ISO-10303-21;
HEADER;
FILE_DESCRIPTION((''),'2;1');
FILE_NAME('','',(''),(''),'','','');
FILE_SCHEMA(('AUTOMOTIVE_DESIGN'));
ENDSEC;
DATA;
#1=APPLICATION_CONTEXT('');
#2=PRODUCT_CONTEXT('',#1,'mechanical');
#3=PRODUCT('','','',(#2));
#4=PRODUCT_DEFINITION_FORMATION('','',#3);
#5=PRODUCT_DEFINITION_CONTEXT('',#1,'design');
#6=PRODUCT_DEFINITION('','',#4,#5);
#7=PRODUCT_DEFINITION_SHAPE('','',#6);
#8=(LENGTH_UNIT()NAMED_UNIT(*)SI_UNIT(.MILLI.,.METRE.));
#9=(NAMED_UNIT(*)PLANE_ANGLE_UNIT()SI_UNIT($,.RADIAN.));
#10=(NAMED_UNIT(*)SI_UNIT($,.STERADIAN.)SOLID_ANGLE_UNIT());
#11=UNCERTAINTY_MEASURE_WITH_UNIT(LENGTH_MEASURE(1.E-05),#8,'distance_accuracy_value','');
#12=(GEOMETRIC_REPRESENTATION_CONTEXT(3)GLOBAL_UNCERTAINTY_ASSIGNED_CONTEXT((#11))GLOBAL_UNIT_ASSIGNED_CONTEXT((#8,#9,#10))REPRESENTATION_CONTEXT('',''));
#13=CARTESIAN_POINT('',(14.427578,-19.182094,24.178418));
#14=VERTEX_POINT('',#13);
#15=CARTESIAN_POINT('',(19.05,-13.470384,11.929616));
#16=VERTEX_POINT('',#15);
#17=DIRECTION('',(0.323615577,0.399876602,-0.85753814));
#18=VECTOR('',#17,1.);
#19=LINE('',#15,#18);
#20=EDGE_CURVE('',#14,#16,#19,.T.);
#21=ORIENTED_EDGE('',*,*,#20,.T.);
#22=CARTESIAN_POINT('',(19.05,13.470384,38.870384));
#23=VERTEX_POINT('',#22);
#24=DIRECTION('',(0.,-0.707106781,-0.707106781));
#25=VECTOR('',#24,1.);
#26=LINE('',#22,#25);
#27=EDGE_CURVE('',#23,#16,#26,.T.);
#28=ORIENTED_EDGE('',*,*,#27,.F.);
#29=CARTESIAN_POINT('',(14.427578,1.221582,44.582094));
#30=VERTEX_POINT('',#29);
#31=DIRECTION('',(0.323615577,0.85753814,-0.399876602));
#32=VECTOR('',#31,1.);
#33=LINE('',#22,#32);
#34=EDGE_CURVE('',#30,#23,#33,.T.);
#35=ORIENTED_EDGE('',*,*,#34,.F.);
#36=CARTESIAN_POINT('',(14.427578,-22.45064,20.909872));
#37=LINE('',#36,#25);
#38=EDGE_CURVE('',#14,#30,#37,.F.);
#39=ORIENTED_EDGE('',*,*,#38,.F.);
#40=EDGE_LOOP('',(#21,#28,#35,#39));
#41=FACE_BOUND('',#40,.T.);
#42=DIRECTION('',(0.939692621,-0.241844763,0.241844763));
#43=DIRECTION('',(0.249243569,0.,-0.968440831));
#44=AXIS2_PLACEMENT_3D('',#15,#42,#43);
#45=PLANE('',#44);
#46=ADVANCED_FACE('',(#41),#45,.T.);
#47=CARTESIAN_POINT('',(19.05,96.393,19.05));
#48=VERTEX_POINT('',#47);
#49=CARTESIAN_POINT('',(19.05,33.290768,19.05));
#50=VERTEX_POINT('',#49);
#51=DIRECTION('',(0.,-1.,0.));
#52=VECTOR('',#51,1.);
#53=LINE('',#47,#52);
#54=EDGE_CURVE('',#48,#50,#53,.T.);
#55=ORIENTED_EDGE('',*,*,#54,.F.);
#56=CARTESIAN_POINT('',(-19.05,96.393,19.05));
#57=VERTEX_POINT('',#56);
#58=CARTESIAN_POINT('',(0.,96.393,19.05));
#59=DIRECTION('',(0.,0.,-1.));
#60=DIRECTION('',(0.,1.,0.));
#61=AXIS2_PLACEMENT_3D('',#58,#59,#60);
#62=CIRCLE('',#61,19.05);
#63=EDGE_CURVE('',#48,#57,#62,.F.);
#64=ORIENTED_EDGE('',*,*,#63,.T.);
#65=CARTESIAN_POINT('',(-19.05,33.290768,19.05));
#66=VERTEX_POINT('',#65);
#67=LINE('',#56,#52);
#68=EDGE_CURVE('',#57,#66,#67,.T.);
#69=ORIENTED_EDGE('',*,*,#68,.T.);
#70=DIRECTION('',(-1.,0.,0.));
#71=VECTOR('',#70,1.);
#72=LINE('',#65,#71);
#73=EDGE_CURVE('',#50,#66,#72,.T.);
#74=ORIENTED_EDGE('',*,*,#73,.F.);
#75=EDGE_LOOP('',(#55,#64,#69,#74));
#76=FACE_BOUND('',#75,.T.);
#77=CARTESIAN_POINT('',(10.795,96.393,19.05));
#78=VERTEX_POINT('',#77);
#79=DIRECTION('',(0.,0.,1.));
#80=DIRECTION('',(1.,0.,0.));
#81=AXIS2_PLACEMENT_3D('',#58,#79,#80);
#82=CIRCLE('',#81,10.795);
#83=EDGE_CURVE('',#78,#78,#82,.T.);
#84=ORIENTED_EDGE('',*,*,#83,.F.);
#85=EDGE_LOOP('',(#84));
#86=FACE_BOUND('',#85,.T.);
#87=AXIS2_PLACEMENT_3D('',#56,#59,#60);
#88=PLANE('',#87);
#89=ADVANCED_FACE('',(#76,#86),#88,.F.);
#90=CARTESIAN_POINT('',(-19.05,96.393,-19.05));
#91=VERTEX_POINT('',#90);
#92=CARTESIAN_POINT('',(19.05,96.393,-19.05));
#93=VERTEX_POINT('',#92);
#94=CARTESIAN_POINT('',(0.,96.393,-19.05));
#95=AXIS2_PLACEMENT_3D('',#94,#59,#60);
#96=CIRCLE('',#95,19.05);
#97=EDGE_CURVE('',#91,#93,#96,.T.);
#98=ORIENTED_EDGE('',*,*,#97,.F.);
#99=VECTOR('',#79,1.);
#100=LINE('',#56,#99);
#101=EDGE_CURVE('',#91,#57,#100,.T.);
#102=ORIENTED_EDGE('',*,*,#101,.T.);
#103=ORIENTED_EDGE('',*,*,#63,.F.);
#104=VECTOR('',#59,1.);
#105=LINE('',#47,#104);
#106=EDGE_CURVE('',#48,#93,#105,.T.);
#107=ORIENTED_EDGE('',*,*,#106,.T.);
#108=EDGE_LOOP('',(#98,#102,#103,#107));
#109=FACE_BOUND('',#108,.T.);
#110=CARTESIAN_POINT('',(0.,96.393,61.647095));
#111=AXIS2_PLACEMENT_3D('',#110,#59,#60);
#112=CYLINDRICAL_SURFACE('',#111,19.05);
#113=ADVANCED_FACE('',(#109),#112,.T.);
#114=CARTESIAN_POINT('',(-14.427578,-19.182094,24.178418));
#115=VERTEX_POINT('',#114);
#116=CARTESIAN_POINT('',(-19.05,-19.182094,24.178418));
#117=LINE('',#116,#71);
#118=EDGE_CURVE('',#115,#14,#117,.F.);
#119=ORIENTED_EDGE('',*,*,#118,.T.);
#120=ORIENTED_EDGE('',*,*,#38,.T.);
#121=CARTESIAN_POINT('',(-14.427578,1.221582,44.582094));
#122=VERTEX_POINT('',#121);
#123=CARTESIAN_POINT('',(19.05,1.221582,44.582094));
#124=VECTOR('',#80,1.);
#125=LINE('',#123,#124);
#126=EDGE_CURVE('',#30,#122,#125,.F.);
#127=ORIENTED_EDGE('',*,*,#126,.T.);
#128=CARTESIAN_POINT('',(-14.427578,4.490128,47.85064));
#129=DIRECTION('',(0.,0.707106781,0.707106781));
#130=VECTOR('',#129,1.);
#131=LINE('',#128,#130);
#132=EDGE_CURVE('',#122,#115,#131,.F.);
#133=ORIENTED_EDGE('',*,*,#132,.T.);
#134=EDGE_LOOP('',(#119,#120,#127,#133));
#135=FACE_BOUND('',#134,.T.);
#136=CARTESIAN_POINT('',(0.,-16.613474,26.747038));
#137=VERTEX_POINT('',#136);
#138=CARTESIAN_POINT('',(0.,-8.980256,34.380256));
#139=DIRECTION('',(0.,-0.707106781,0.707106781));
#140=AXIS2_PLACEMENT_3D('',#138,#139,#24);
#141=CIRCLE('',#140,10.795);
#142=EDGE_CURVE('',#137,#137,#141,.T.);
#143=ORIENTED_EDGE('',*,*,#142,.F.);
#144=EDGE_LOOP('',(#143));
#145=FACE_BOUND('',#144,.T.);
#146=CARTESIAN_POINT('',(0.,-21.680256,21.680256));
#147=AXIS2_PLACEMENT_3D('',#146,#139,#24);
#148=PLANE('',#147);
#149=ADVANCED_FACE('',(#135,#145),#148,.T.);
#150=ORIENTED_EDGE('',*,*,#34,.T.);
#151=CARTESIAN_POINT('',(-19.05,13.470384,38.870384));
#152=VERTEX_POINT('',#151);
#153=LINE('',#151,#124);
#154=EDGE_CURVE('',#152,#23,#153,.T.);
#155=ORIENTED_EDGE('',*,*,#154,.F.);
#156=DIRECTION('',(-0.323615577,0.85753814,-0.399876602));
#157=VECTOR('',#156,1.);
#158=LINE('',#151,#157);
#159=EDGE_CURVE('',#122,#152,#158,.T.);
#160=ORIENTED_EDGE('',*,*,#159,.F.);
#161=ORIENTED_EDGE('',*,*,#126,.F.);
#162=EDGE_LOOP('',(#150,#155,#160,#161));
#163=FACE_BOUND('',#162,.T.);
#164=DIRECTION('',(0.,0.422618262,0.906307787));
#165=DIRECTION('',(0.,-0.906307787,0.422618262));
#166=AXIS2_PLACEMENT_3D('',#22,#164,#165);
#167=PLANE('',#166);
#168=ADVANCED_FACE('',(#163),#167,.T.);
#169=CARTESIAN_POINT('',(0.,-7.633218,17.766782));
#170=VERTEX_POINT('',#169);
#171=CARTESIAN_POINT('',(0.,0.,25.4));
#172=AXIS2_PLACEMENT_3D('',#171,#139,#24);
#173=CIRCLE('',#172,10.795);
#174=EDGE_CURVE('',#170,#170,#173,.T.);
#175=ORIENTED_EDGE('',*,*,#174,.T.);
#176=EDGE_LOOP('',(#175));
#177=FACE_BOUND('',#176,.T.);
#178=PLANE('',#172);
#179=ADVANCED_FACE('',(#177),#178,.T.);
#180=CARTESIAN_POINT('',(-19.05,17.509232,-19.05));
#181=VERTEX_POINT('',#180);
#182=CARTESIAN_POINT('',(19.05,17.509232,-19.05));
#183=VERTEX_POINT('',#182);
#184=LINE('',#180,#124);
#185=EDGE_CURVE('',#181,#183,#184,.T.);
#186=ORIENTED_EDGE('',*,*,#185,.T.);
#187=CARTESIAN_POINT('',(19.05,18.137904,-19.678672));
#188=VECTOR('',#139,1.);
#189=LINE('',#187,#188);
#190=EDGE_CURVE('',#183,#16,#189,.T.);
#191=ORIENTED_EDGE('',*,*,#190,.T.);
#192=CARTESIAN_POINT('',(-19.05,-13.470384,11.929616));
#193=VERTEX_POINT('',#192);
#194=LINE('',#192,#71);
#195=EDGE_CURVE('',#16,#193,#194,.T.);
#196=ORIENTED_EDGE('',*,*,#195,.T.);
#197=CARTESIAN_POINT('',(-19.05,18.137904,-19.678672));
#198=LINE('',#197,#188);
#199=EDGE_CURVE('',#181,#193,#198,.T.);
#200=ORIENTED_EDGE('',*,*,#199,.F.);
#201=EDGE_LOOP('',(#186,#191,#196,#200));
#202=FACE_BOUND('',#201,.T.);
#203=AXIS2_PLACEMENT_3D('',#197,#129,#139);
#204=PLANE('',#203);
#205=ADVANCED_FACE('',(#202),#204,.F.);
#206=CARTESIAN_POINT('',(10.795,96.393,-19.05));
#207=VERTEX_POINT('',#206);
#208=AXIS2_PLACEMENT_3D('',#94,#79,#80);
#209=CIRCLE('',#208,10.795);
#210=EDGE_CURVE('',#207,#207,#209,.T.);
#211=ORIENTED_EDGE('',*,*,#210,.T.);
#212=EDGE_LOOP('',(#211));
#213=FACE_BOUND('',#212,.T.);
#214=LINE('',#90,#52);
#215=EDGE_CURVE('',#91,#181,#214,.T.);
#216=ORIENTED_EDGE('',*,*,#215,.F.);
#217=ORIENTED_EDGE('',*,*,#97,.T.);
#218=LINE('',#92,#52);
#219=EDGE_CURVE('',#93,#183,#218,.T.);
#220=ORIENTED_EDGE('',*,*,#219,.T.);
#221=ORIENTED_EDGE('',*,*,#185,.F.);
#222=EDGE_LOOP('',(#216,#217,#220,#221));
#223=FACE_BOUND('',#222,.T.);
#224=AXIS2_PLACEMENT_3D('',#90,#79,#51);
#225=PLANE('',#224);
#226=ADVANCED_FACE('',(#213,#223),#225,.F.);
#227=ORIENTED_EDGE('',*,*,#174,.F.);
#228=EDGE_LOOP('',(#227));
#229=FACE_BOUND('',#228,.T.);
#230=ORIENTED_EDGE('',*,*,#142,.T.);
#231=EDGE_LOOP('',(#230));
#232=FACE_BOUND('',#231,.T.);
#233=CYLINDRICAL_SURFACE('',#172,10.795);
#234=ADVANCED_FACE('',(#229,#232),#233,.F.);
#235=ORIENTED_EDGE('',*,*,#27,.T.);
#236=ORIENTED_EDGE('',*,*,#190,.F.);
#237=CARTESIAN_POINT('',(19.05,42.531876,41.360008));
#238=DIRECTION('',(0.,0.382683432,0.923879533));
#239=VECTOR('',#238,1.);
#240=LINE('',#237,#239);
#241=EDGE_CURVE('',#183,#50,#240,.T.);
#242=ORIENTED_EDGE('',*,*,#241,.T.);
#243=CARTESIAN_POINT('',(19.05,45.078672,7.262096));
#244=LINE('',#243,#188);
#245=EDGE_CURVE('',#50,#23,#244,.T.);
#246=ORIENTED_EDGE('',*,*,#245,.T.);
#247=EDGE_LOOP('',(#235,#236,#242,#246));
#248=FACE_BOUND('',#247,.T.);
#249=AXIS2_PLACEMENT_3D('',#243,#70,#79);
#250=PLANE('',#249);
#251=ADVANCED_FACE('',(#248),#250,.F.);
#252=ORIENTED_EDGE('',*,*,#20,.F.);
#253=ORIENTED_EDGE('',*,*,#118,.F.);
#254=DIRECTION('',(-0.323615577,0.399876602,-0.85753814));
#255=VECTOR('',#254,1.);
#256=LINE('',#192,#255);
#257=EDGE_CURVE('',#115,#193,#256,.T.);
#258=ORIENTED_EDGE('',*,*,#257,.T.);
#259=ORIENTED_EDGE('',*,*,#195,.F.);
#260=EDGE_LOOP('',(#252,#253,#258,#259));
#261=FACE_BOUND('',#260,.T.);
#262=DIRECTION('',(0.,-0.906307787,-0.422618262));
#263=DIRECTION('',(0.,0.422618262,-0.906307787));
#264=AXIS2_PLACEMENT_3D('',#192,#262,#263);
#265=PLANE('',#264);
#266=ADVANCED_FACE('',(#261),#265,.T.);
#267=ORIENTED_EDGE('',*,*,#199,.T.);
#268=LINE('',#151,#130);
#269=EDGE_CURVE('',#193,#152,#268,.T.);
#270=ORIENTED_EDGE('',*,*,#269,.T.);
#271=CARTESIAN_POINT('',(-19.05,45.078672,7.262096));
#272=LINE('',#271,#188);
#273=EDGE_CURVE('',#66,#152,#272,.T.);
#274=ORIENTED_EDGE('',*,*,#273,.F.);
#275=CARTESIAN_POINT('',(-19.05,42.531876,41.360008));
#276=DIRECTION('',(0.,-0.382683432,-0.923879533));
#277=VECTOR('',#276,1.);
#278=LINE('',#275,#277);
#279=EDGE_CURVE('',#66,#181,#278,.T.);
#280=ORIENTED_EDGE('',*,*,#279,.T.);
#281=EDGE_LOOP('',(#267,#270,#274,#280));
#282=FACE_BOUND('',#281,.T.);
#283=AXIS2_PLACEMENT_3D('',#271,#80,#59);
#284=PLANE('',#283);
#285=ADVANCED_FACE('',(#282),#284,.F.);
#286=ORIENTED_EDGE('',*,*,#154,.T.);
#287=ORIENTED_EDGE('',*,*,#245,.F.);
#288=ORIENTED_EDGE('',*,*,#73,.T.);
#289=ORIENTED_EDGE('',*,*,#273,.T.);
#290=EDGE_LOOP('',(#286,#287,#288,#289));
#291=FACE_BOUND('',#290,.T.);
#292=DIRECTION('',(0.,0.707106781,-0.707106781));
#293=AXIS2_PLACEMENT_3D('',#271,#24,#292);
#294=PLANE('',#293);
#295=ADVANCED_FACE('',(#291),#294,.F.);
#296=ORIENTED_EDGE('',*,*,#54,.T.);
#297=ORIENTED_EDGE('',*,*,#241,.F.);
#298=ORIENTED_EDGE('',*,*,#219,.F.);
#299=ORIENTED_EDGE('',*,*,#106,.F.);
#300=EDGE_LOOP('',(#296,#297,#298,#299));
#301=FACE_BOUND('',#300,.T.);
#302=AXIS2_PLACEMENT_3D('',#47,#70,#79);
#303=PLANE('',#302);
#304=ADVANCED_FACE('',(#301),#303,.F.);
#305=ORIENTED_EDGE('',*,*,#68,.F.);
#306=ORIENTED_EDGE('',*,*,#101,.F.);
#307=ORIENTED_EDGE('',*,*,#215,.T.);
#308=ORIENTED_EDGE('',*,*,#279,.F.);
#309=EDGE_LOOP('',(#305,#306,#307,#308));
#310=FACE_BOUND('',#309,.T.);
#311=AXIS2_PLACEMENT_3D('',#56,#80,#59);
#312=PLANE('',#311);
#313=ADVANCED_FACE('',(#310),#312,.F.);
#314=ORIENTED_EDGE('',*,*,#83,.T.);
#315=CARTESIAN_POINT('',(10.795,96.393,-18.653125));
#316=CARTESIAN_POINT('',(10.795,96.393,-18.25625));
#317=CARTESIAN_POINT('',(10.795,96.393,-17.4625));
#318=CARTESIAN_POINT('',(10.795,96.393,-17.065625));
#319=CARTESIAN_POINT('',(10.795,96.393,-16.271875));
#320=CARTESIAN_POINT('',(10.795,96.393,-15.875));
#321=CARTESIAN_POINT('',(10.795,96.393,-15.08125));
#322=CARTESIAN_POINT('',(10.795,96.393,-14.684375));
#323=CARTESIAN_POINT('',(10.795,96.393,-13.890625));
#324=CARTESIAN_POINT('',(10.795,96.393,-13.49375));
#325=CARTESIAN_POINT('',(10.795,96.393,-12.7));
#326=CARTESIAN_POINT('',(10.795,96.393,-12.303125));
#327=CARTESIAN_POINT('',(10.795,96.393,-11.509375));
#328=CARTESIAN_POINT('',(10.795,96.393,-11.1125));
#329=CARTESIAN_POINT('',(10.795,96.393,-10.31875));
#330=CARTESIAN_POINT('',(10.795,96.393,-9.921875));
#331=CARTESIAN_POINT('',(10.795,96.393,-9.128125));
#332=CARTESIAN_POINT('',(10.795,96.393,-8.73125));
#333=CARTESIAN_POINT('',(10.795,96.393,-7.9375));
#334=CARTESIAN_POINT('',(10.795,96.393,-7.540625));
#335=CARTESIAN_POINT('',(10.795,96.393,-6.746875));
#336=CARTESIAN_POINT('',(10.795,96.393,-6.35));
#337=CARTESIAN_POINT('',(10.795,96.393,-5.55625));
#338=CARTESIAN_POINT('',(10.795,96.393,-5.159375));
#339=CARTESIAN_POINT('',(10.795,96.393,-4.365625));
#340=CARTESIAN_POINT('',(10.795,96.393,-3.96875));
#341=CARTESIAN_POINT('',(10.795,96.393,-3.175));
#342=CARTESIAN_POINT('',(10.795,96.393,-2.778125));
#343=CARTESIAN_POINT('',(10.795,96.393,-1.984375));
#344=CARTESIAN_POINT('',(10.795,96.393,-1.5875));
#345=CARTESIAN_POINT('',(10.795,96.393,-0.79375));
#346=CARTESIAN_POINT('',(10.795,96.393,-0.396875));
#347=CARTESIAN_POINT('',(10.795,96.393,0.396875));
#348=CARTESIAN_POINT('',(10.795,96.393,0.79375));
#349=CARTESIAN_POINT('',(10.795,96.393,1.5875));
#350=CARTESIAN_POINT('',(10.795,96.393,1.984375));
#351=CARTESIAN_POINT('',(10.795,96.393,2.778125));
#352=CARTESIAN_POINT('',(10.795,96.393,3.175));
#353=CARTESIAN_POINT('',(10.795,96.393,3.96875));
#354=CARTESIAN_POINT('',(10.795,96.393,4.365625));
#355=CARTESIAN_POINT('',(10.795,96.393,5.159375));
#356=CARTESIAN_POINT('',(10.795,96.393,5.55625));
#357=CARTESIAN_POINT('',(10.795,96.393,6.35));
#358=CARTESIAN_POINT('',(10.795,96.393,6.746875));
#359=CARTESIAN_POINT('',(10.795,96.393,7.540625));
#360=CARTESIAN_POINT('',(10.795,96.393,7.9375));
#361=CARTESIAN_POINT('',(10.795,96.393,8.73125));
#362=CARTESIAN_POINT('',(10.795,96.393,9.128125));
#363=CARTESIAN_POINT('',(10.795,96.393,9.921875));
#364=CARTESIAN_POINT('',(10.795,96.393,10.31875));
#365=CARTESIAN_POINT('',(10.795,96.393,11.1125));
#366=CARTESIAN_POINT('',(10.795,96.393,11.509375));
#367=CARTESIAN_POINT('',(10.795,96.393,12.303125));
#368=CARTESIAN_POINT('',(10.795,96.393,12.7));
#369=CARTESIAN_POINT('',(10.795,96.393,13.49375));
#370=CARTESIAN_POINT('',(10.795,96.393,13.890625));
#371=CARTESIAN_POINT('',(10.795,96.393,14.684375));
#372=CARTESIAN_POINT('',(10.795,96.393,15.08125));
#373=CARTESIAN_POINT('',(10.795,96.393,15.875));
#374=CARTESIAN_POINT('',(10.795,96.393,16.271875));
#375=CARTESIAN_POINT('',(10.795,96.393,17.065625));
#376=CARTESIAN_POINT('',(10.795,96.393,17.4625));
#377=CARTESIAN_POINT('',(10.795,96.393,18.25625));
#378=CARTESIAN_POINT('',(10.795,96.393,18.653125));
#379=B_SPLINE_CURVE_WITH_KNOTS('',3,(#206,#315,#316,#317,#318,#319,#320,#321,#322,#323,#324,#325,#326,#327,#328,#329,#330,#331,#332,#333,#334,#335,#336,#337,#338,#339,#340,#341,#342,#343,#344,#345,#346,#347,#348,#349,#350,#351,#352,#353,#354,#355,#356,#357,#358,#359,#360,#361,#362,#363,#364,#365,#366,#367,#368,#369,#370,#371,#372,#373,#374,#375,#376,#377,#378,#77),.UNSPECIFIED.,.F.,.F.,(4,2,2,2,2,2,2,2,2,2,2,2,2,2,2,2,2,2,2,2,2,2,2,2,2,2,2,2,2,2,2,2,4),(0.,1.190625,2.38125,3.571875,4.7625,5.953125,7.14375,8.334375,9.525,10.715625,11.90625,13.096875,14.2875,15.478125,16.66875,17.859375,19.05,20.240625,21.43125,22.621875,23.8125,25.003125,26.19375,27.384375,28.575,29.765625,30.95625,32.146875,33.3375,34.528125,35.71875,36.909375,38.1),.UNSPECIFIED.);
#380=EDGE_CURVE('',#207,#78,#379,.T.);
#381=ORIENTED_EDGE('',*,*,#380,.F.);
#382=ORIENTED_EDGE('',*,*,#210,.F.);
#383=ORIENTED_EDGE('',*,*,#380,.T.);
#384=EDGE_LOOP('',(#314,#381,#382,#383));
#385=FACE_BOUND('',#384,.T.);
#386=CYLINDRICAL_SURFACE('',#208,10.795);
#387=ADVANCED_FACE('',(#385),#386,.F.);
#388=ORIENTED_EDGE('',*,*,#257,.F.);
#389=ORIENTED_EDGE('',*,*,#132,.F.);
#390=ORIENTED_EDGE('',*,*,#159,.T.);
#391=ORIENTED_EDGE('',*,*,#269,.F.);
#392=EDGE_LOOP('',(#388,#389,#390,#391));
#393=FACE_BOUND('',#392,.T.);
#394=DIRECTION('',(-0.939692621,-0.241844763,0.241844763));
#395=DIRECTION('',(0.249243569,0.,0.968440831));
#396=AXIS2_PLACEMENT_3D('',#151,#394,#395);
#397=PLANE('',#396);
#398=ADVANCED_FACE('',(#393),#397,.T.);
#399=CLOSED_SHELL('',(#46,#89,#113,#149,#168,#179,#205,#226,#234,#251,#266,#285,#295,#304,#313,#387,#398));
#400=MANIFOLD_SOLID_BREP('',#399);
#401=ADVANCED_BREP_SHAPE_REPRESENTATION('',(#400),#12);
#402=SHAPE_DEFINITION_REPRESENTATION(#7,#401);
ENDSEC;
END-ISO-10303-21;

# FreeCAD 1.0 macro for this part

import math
import FreeCAD as App
import Part
import Sketcher

V = App.Vector
Q = App.Units.Quantity


def add_polygon(sketch, points):
    """Adds a closed chain of lines whose ends are joined by coincident constraints."""
    first, n = sketch.GeometryCount, len(points)
    for a, b in zip(points, points[1:] + points[:1]):
        sketch.addGeometry(Part.LineSegment(App.Vector(*a, 0), App.Vector(*b, 0)), False)
    for i in range(n):
        sketch.addConstraint(Sketcher.Constraint("Coincident", first + i, 2, first + (i + 1) % n, 1))

doc = App.newDocument("Part")
body = doc.addObject("PartDesign::Body", "Body")

# Sketch on XZ plane
sketch1 = body.newObject("Sketcher::SketchObject", "Sketch")
sketch1.AttachmentSupport = (doc.getObject("XZ_Plane"), [""])
sketch1.MapMode = "FlatFace"
sketch1.AttachmentOffset = App.Placement(V(0, 0, -3.795 * 25.4), App.Rotation())
add_polygon(sketch1, [(-19, -19), (-19, 19), (19, 19), (19, -19)])  # lines 0-3
sketch1.addConstraint([
    Sketcher.Constraint("Vertical", 0),
    Sketcher.Constraint("Horizontal", 1),
    Sketcher.Constraint("Vertical", 2),
    Sketcher.Constraint("Horizontal", 3),
    Sketcher.Constraint("Symmetric", 0, 2, 2, 2, -1, 1),
    Sketcher.Constraint("Equal", 3, 0),
    Sketcher.Constraint("DistanceX", 1, 1, 1, 2, Q("1.5 in")),
])

# Sketch on YZ plane
sketch2 = body.newObject("Sketcher::SketchObject", "Sketch001")
sketch2.AttachmentSupport = (doc.getObject("YZ_Plane"), [""])
sketch2.MapMode = "FlatFace"
sketch2.addGeometry([
    Part.LineSegment(V(96, 0, 0), V(25, 0, 0)),
    Part.LineSegment(V(25, 0, 0), V(0, 25, 0)),
], False)
sketch2.addConstraint([
    Sketcher.Constraint("Coincident", 0, 2, 1, 1),
    Sketcher.Constraint("Horizontal", 0),
    Sketcher.Constraint("PointOnObject", 0, 1, -1),
    Sketcher.Constraint("PointOnObject", 1, 2, -2),
    Sketcher.Constraint("DistanceX", -1, 1, 0, 2, Q("1 in")),
    Sketcher.Constraint("DistanceY", -1, 1, 1, 2, Q("1 in")),
    Sketcher.Constraint("DistanceX", 0, 2, 0, 1, Q("2.795 in")),
])
doc.recompute()

additivepipe = body.newObject("PartDesign::AdditivePipe", "AdditivePipe")
additivepipe.Profile = sketch1
additivepipe.Spine = (sketch2, ["Edge1", "Edge2"])
additivepipe.Transition = "Right corner"

# Sketch on an angled plane
sketch3 = body.newObject("Sketcher::SketchObject", "Sketch002")
sketch3.Placement = App.Placement(V(0, -12.7, 12.7), App.Rotation(V(1, 0, 0), V(0, 0.707106781, 0.707106781), V(0, -0.707106781, 0.707106781), "ZXY"))
add_polygon(sketch3, [(-19, 37), (-19, -1), (19, -1), (19, 37)])  # lines 0-3
sketch3.addConstraint([
    Sketcher.Constraint("Vertical", 0),
    Sketcher.Constraint("Horizontal", 1),
    Sketcher.Constraint("Vertical", 2),
    Sketcher.Constraint("Horizontal", 3),
    Sketcher.Constraint("Equal", 3, 0),
    Sketcher.Constraint("DistanceX", 1, 1, 1, 2, Q("1.5 in")),
    Sketcher.Constraint("DistanceX", 0, 2, -1, 1, Q("0.75 in")),
    Sketcher.Constraint("DistanceY", 0, 2, -1, 1, 1.089488),
])
pad1 = body.newObject("PartDesign::Pad", "Pad")
pad1.Profile = sketch3
pad1.Length = Q("0.5 in")
pad1.TaperAngle = -20

# Sketch on XY plane
sketch4 = body.newObject("Sketcher::SketchObject", "Sketch003")
sketch4.AttachmentSupport = (doc.getObject("XY_Plane"), [""])
sketch4.MapMode = "FlatFace"
sketch4.AttachmentOffset = App.Placement(V(0, 0, -0.75 * 25.4), App.Rotation())
sketch4.addGeometry([
    Part.LineSegment(V(19, 96, 0), V(-19, 96, 0)),
    Part.ArcOfCircle(Part.Circle(V(0, 96, 0), V(0, 0, 1), 19), math.radians(0), math.radians(180)),
], False)
sketch4.addConstraint([
    Sketcher.Constraint("Coincident", 0, 1, 1, 1),
    Sketcher.Constraint("Coincident", 1, 2, 0, 2),
    Sketcher.Constraint("Horizontal", 0),
    Sketcher.Constraint("PointOnObject", 1, 3, -2),
    Sketcher.Constraint("Horizontal", 1, 3, 0, 1),
    Sketcher.Constraint("Radius", 1, Q("0.75 in")),
    Sketcher.Constraint("DistanceY", -1, 1, 1, 3, Q("3.795 in")),
])
pad2 = body.newObject("PartDesign::Pad", "Pad001")
pad2.Profile = sketch4
pad2.Length = Q("1.5 in")

# Sketch on XY plane
sketch5 = body.newObject("Sketcher::SketchObject", "Sketch004")
sketch5.AttachmentSupport = (doc.getObject("XY_Plane"), [""])
sketch5.MapMode = "FlatFace"
sketch5.AttachmentOffset = App.Placement(V(0, 0, 0.75 * 25.4), App.Rotation())
sketch5.addGeometry(Part.Circle(V(0, 96, 0), V(0, 0, 1), 11), False)
sketch5.addConstraint([
    Sketcher.Constraint("PointOnObject", 0, 3, -2),
    Sketcher.Constraint("Diameter", 0, Q("0.85 in")),
    Sketcher.Constraint("DistanceY", -1, 1, 0, 3, Q("3.795 in")),
])
pocket1 = body.newObject("PartDesign::Pocket", "Pocket")
pocket1.Profile = sketch5
pocket1.Length = Q("1.5 in")

# Sketch on an angled plane
sketch6 = body.newObject("Sketcher::SketchObject", "Sketch005")
sketch6.Placement = App.Placement(V(0, -21.680256, 21.680256), App.Rotation(V(1, 0, 0), V(0, 0.707106781, 0.707106781), V(0, -0.707106781, 0.707106781), "ZXY"))
sketch6.addGeometry(Part.Circle(V(0, 18, 0), V(0, 0, 1), 11), False)
sketch6.addConstraint([
    Sketcher.Constraint("PointOnObject", 0, 3, -2),
    Sketcher.Constraint("Diameter", 0, Q("0.85 in")),
    Sketcher.Constraint("DistanceY", -1, 1, 0, 3, 17.960512),
])
pocket2 = body.newObject("PartDesign::Pocket", "Pocket001")
pocket2.Profile = sketch6
pocket2.Length = Q("0.5 in")

doc.recompute()
